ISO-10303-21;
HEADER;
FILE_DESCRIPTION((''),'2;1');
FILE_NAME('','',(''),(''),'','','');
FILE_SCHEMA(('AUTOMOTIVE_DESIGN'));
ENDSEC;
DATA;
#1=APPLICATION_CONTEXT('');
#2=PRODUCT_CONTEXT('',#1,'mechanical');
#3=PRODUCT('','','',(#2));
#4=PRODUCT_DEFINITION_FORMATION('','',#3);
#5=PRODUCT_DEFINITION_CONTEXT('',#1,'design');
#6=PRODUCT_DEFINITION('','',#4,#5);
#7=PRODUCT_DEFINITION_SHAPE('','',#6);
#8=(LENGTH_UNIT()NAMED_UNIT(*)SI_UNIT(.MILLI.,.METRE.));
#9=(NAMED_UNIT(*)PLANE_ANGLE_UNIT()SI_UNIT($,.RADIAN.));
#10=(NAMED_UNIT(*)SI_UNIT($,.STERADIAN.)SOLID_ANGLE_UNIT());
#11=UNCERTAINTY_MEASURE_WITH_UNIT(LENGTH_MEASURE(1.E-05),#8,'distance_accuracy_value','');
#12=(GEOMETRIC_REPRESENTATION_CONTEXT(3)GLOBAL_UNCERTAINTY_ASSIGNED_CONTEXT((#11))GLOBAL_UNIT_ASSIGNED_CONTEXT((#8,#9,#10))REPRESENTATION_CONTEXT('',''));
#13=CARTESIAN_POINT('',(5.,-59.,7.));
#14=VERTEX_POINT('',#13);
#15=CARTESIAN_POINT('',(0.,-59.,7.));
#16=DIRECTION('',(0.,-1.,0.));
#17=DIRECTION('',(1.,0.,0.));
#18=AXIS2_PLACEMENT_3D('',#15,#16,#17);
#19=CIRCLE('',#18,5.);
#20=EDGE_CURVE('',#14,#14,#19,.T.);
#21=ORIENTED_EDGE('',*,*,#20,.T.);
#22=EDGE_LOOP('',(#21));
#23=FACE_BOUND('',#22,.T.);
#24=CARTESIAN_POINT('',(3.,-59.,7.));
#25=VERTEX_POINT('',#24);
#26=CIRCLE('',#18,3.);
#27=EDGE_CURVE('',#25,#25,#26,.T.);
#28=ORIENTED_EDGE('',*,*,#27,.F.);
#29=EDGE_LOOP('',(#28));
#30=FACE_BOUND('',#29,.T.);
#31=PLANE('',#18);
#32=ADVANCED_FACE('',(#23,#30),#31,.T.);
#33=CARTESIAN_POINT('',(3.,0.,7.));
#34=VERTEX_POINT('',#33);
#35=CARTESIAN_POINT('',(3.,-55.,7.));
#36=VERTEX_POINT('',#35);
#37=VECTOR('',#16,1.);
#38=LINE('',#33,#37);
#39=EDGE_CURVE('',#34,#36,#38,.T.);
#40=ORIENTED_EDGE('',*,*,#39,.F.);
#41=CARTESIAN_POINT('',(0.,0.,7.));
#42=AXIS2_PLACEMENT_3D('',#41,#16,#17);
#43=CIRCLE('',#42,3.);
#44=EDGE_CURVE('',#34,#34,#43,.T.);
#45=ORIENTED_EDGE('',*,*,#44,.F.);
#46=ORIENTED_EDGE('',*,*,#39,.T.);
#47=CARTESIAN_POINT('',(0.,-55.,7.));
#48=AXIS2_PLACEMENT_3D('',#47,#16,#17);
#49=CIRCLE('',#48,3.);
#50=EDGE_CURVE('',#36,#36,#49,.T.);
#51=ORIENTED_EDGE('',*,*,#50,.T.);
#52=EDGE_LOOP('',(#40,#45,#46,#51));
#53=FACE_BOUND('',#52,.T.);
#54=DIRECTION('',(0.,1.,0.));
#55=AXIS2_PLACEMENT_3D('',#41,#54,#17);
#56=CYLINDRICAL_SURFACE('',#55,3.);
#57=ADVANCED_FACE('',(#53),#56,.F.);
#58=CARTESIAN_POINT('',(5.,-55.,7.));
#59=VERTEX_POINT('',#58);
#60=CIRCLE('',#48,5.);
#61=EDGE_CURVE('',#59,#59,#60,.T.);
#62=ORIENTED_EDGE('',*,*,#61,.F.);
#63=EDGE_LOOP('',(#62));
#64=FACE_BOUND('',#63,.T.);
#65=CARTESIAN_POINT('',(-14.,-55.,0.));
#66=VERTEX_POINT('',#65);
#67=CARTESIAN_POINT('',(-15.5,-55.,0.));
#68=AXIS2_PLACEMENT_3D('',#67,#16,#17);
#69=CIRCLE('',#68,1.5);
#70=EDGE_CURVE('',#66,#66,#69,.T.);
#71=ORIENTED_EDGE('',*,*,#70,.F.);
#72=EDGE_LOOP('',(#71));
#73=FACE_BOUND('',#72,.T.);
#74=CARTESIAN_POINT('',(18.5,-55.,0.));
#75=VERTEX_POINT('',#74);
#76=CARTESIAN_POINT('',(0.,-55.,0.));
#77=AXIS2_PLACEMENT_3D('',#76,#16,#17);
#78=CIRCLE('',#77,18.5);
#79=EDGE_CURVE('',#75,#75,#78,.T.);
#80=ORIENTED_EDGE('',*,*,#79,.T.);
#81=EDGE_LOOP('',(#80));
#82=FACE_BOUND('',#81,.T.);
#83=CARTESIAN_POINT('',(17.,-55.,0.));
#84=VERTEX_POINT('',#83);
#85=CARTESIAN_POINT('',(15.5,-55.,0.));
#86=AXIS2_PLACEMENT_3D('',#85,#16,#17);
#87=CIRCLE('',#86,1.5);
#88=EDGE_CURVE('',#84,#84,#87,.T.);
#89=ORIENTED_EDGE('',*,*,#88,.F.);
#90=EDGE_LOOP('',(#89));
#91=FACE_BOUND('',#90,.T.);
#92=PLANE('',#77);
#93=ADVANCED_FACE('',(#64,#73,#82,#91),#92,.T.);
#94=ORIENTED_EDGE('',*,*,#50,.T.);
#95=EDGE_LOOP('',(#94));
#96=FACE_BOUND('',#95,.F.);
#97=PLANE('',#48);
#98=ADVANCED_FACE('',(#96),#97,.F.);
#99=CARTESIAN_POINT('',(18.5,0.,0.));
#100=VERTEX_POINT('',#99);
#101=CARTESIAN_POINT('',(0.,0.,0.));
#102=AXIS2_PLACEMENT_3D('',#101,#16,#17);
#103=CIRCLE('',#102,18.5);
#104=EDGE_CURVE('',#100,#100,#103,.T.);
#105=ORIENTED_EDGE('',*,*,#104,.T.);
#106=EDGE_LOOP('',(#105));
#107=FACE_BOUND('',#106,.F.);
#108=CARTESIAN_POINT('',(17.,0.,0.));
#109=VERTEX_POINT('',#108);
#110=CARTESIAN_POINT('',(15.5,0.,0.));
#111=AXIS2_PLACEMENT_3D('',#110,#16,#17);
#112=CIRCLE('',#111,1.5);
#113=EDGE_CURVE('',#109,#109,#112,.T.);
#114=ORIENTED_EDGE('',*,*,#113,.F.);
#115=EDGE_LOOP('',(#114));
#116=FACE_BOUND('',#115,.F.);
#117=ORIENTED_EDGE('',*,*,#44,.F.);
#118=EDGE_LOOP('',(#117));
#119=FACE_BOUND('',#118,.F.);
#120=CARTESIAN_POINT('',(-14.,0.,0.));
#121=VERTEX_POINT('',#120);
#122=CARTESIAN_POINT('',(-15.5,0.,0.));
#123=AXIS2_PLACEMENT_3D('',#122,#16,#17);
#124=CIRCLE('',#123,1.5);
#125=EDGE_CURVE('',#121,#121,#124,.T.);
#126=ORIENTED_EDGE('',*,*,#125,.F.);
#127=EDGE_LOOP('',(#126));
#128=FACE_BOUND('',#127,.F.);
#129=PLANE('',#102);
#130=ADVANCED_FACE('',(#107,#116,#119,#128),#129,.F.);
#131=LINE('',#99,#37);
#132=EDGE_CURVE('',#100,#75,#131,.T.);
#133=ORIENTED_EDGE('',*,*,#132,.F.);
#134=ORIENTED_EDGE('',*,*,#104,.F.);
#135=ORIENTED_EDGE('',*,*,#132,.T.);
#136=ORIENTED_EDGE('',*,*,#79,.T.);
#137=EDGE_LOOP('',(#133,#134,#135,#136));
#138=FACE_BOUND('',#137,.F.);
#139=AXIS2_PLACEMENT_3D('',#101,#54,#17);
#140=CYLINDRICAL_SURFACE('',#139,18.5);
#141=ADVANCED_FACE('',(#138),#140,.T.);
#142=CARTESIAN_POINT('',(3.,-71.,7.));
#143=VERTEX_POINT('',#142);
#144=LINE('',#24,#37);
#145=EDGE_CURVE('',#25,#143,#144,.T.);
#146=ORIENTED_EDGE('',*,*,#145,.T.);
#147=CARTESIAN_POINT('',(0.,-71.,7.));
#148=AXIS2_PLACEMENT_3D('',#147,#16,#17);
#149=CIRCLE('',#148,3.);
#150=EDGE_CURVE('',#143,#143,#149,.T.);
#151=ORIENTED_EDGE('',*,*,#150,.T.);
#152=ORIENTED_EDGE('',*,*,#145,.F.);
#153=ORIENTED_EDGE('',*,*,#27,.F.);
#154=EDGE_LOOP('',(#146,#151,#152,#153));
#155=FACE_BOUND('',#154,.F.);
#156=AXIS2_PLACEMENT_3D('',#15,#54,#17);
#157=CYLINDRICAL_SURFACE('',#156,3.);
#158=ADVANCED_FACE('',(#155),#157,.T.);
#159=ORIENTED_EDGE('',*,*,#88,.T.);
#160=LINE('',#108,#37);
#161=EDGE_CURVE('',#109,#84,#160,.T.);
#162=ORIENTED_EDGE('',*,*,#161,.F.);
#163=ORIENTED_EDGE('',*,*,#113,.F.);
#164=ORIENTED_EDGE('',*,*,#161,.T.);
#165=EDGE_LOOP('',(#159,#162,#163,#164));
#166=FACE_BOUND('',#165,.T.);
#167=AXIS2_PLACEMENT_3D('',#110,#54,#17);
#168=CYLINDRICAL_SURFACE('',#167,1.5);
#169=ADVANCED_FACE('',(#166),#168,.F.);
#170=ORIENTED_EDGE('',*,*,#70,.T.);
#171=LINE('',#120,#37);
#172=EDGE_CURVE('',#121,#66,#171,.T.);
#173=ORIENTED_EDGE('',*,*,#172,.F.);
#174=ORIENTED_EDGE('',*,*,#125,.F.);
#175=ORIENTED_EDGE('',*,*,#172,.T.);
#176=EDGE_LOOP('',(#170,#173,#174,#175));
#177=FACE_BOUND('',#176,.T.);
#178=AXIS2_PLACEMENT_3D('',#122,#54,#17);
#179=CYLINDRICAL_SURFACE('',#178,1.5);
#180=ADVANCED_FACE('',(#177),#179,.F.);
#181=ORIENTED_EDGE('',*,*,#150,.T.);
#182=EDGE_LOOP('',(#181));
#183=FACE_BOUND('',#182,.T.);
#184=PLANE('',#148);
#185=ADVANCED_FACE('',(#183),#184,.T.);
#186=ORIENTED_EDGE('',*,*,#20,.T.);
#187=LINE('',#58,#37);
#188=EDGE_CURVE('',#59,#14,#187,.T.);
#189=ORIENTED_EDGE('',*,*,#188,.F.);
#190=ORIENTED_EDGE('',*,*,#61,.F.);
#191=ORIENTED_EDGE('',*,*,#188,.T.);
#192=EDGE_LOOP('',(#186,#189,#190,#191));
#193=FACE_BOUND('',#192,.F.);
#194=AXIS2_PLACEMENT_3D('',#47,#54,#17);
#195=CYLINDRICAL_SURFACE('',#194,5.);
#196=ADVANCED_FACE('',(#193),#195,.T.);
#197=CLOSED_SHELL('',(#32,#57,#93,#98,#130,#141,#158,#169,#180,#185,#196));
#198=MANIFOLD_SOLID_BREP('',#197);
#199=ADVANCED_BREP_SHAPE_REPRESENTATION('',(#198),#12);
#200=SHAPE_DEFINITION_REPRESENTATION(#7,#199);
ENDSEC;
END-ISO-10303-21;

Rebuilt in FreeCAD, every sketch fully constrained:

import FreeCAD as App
import Part
import Sketcher
Q = App.Units.Quantity

doc = App.newDocument("Part")
body = doc.addObject("PartDesign::Body", "Body")

sketch1 = doc.addObject("Sketcher::SketchObject", "Sketch")
body.addObject(sketch1)
sketch1.AttachmentSupport = (doc.XZ_Plane, [""])
sketch1.MapMode = "FlatFace"
sketch1.addGeometry([
    Part.Circle(App.Vector(0, 0, 0), App.Vector(0, 0, 1), 18.5),
    Part.Circle(App.Vector(-15.5, 0, 0), App.Vector(0, 0, 1), 1.5),
    Part.Circle(App.Vector(15.5, 0, 0), App.Vector(0, 0, 1), 1.5),
    Part.Circle(App.Vector(0, 7, 0), App.Vector(0, 0, 1), 3),
], False)
sketch1.addConstraint([
    Sketcher.Constraint("Coincident", 0, 3, -1, 1),
    Sketcher.Constraint("Equal", 1, 2),
    Sketcher.Constraint("Symmetric", 1, 3, 2, 3, -1, 1),
    Sketcher.Constraint("PointOnObject", 1, 3, -1),
    Sketcher.Constraint("PointOnObject", 3, 3, -2),
    Sketcher.Constraint("Diameter", 0, Q("37 mm")),
    Sketcher.Constraint("Diameter", 1, Q("3 mm")),
    Sketcher.Constraint("Diameter", 3, Q("6 mm")),
    Sketcher.Constraint("DistanceY", -1, 1, 3, 3, Q("7 mm")),
    Sketcher.Constraint("DistanceX", 1, 3, 2, 3, Q("31 mm")),
])
pad1 = doc.addObject("PartDesign::Pad", "Pad")
body.addObject(pad1)
pad1.Profile = sketch1
pad1.Length = 55

sketch2 = doc.addObject("Sketcher::SketchObject", "Sketch001")
body.addObject(sketch2)
sketch2.AttachmentSupport = (doc.XZ_Plane, [""])
sketch2.MapMode = "FlatFace"
sketch2.AttachmentOffset = App.Placement(App.Vector(0, 0, 55), App.Rotation())
sketch2.addGeometry(Part.Circle(App.Vector(0, 7, 0), App.Vector(0, 0, 1), 5), False)
sketch2.addConstraint([
    Sketcher.Constraint("PointOnObject", 0, 3, -2),
    Sketcher.Constraint("Diameter", 0, Q("10 mm")),
    Sketcher.Constraint("DistanceY", -1, 1, 0, 3, Q("7 mm")),
])
pad2 = doc.addObject("PartDesign::Pad", "Pad001")
body.addObject(pad2)
pad2.Profile = sketch2
pad2.Length = 4

sketch3 = doc.addObject("Sketcher::SketchObject", "Sketch002")
body.addObject(sketch3)
sketch3.AttachmentSupport = (doc.XZ_Plane, [""])
sketch3.MapMode = "FlatFace"
sketch3.AttachmentOffset = App.Placement(App.Vector(0, 0, 59), App.Rotation())
sketch3.addGeometry(Part.Circle(App.Vector(0, 7, 0), App.Vector(0, 0, 1), 3), False)
sketch3.addConstraint([
    Sketcher.Constraint("PointOnObject", 0, 3, -2),
    Sketcher.Constraint("Diameter", 0, Q("6 mm")),
    Sketcher.Constraint("DistanceY", -1, 1, 0, 3, Q("7 mm")),
])
pad3 = doc.addObject("PartDesign::Pad", "Pad002")
body.addObject(pad3)
pad3.Profile = sketch3
pad3.Length = 12

doc.recompute()
